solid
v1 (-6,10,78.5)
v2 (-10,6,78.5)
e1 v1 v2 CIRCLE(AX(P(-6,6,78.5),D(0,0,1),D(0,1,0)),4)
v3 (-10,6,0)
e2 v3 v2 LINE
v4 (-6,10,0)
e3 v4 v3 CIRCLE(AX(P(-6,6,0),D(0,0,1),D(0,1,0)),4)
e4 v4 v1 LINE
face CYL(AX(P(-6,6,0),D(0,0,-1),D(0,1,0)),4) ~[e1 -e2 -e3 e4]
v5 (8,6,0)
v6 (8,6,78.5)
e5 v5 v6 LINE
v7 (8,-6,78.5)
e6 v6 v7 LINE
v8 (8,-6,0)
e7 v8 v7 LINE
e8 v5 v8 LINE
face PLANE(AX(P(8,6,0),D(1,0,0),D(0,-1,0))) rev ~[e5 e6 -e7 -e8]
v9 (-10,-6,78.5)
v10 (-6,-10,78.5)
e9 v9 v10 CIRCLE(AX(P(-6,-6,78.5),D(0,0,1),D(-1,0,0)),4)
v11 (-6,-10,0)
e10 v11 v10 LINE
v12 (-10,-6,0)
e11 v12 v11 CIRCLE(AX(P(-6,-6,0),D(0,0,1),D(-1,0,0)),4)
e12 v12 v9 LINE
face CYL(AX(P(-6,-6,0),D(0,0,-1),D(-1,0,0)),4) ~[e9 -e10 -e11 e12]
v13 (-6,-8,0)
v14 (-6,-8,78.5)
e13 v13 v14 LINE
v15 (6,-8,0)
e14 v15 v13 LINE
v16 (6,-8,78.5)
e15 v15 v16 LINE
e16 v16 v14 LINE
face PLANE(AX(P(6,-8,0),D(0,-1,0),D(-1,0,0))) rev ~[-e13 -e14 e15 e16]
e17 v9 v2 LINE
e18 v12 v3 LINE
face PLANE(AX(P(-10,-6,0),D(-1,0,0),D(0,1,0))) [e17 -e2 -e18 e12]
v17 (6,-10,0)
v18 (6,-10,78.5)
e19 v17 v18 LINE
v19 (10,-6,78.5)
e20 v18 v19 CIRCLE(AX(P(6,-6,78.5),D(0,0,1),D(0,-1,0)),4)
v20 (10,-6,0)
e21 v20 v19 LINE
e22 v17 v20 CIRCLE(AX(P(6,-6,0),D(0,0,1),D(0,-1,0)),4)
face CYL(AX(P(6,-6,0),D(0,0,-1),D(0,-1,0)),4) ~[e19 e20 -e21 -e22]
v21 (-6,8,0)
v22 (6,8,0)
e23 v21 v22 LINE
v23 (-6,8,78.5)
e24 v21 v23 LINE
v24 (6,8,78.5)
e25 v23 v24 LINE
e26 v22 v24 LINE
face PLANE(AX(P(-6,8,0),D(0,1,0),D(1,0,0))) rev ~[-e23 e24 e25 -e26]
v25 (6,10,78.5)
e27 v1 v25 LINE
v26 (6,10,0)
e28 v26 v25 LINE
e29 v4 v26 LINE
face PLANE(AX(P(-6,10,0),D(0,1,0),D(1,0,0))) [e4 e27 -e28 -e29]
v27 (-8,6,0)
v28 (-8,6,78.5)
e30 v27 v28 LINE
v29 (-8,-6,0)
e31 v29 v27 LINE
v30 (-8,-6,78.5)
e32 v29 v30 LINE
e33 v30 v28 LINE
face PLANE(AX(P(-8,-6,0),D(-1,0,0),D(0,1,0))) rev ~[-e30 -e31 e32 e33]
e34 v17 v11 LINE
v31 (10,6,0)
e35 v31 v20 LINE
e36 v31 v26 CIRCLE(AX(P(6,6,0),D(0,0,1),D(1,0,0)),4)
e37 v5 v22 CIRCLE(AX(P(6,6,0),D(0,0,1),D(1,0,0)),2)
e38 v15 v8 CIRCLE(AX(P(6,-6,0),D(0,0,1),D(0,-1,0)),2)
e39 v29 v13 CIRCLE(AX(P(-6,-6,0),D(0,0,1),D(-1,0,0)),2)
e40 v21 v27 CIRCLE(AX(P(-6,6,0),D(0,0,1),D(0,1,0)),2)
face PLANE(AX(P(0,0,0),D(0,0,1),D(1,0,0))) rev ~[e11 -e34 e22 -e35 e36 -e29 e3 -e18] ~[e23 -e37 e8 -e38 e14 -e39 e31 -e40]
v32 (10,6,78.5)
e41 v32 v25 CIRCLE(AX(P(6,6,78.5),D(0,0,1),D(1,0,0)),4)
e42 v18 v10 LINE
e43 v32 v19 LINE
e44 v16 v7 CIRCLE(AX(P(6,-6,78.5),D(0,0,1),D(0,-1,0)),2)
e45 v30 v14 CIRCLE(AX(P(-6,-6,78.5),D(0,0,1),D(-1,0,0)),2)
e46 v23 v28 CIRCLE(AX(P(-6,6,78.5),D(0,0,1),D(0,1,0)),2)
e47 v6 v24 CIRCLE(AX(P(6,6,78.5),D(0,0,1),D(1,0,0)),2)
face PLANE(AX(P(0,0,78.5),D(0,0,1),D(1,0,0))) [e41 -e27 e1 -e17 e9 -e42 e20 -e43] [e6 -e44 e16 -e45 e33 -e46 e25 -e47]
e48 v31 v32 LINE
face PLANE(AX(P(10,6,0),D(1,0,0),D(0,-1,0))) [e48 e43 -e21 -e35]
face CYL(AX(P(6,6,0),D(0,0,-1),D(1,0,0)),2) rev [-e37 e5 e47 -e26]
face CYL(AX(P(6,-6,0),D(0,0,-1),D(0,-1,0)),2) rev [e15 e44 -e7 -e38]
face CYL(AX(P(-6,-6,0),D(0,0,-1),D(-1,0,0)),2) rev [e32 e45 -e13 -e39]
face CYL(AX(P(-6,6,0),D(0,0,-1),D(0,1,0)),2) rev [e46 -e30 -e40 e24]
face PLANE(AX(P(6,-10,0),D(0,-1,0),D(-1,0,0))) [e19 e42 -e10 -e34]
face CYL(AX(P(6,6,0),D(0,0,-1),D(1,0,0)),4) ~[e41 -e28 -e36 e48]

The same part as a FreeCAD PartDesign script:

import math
import FreeCAD as App
import Part
import Sketcher

V = App.Vector

doc = App.newDocument("Part")
params = doc.addObject("Spreadsheet::Sheet", "Params")
for row, (alias, value) in enumerate([
    ("sketch1_radius", "4 mm"),
    ("sketch1_radius2", "2 mm"),
    ("pad1_length", "78.5 mm"),
], start=1):
    params.set(f"A{row}", alias)
    params.set(f"B{row}", "=" + value)
    params.setAlias(f"B{row}", alias)

body = doc.addObject("PartDesign::Body", "Body")

sketch1 = doc.addObject("Sketcher::SketchObject", "Sketch")
body.addObject(sketch1)
sketch1.AttachmentSupport = (doc.XY_Plane, [""])
sketch1.MapMode = "FlatFace"
sketch1.addGeometry([
    Part.LineSegment(V(-10, 6, 0), V(-10, -6, 0)),
    Part.ArcOfCircle(Part.Circle(V(-6, -6, 0), V(0, 0, 1), 4), math.radians(180), math.radians(270)),
    Part.LineSegment(V(-6, -10, 0), V(6, -10, 0)),
    Part.ArcOfCircle(Part.Circle(V(6, -6, 0), V(0, 0, 1), 4), math.radians(-90), math.radians(0)),
    Part.LineSegment(V(10, -6, 0), V(10, 6, 0)),
    Part.ArcOfCircle(Part.Circle(V(6, 6, 0), V(0, 0, 1), 4), math.radians(0), math.radians(90)),
    Part.LineSegment(V(6, 10, 0), V(-6, 10, 0)),
    Part.ArcOfCircle(Part.Circle(V(-6, 6, 0), V(0, 0, 1), 4), math.radians(90), math.radians(180)),
    Part.ArcOfCircle(Part.Circle(V(-6, 6, 0), V(0, 0, 1), 2), math.radians(90), math.radians(180)),
    Part.LineSegment(V(-6, 8, 0), V(6, 8, 0)),
    Part.ArcOfCircle(Part.Circle(V(6, 6, 0), V(0, 0, 1), 2), math.radians(0), math.radians(90)),
    Part.LineSegment(V(8, 6, 0), V(8, -6, 0)),
    Part.ArcOfCircle(Part.Circle(V(6, -6, 0), V(0, 0, 1), 2), math.radians(-90), math.radians(0)),
    Part.LineSegment(V(6, -8, 0), V(-6, -8, 0)),
    Part.ArcOfCircle(Part.Circle(V(-6, -6, 0), V(0, 0, 1), 2), math.radians(180), math.radians(270)),
    Part.LineSegment(V(-8, -6, 0), V(-8, 6, 0)),
], False)
sketch1.addConstraint([
    Sketcher.Constraint("Tangent", 0, 2, 1, 1),
    Sketcher.Constraint("Tangent", 1, 2, 2, 1),
    Sketcher.Constraint("Tangent", 2, 2, 3, 1),
    Sketcher.Constraint("Tangent", 3, 2, 4, 1),
    Sketcher.Constraint("Tangent", 4, 2, 5, 1),
    Sketcher.Constraint("Tangent", 5, 2, 6, 1),
    Sketcher.Constraint("Tangent", 6, 2, 7, 1),
    Sketcher.Constraint("Tangent", 7, 2, 0, 1),
    Sketcher.Constraint("Tangent", 8, 1, 9, 1),
    Sketcher.Constraint("Tangent", 9, 2, 10, 2),
    Sketcher.Constraint("Tangent", 10, 1, 11, 1),
    Sketcher.Constraint("Tangent", 11, 2, 12, 2),
    Sketcher.Constraint("Tangent", 12, 1, 13, 1),
    Sketcher.Constraint("Tangent", 13, 2, 14, 2),
    Sketcher.Constraint("Tangent", 14, 1, 15, 1),
    Sketcher.Constraint("Tangent", 15, 2, 8, 2),
    Sketcher.Constraint("Vertical", 0),
    Sketcher.Constraint("Horizontal", 2),
    Sketcher.Constraint("Vertical", 4),
    Sketcher.Constraint("Horizontal", 6),
    Sketcher.Constraint("Horizontal", 9),
    Sketcher.Constraint("Vertical", 11),
    Sketcher.Constraint("Horizontal", 13),
    Sketcher.Constraint("Vertical", 15),
    Sketcher.Constraint("Coincident", 8, 3, 7, 3),
    Sketcher.Constraint("Coincident", 10, 3, 5, 3),
    Sketcher.Constraint("Coincident", 12, 3, 3, 3),
    Sketcher.Constraint("Equal", 1, 3),
    Sketcher.Constraint("Equal", 3, 5),
    Sketcher.Constraint("Equal", 5, 7),
    Sketcher.Constraint("Equal", 12, 14),
    Sketcher.Constraint("Symmetric", 1, 3, 5, 3, -1, 1),
    Sketcher.Constraint("Equal", 13, 0),
    Sketcher.Constraint("Radius", 1, 4.0),
    Sketcher.Constraint("Radius", 8, 2.0),
    Sketcher.Constraint("DistanceX", 0, 2, -1, 1, 10.0),
])
sketch1.setExpression("Constraints[33]", "Params.sketch1_radius")
sketch1.setExpression("Constraints[34]", "Params.sketch1_radius2")
pad1 = doc.addObject("PartDesign::Pad", "Pad")
body.addObject(pad1)
pad1.Profile = sketch1
pad1.setExpression("Length", "Params.pad1_length")

doc.recompute()
